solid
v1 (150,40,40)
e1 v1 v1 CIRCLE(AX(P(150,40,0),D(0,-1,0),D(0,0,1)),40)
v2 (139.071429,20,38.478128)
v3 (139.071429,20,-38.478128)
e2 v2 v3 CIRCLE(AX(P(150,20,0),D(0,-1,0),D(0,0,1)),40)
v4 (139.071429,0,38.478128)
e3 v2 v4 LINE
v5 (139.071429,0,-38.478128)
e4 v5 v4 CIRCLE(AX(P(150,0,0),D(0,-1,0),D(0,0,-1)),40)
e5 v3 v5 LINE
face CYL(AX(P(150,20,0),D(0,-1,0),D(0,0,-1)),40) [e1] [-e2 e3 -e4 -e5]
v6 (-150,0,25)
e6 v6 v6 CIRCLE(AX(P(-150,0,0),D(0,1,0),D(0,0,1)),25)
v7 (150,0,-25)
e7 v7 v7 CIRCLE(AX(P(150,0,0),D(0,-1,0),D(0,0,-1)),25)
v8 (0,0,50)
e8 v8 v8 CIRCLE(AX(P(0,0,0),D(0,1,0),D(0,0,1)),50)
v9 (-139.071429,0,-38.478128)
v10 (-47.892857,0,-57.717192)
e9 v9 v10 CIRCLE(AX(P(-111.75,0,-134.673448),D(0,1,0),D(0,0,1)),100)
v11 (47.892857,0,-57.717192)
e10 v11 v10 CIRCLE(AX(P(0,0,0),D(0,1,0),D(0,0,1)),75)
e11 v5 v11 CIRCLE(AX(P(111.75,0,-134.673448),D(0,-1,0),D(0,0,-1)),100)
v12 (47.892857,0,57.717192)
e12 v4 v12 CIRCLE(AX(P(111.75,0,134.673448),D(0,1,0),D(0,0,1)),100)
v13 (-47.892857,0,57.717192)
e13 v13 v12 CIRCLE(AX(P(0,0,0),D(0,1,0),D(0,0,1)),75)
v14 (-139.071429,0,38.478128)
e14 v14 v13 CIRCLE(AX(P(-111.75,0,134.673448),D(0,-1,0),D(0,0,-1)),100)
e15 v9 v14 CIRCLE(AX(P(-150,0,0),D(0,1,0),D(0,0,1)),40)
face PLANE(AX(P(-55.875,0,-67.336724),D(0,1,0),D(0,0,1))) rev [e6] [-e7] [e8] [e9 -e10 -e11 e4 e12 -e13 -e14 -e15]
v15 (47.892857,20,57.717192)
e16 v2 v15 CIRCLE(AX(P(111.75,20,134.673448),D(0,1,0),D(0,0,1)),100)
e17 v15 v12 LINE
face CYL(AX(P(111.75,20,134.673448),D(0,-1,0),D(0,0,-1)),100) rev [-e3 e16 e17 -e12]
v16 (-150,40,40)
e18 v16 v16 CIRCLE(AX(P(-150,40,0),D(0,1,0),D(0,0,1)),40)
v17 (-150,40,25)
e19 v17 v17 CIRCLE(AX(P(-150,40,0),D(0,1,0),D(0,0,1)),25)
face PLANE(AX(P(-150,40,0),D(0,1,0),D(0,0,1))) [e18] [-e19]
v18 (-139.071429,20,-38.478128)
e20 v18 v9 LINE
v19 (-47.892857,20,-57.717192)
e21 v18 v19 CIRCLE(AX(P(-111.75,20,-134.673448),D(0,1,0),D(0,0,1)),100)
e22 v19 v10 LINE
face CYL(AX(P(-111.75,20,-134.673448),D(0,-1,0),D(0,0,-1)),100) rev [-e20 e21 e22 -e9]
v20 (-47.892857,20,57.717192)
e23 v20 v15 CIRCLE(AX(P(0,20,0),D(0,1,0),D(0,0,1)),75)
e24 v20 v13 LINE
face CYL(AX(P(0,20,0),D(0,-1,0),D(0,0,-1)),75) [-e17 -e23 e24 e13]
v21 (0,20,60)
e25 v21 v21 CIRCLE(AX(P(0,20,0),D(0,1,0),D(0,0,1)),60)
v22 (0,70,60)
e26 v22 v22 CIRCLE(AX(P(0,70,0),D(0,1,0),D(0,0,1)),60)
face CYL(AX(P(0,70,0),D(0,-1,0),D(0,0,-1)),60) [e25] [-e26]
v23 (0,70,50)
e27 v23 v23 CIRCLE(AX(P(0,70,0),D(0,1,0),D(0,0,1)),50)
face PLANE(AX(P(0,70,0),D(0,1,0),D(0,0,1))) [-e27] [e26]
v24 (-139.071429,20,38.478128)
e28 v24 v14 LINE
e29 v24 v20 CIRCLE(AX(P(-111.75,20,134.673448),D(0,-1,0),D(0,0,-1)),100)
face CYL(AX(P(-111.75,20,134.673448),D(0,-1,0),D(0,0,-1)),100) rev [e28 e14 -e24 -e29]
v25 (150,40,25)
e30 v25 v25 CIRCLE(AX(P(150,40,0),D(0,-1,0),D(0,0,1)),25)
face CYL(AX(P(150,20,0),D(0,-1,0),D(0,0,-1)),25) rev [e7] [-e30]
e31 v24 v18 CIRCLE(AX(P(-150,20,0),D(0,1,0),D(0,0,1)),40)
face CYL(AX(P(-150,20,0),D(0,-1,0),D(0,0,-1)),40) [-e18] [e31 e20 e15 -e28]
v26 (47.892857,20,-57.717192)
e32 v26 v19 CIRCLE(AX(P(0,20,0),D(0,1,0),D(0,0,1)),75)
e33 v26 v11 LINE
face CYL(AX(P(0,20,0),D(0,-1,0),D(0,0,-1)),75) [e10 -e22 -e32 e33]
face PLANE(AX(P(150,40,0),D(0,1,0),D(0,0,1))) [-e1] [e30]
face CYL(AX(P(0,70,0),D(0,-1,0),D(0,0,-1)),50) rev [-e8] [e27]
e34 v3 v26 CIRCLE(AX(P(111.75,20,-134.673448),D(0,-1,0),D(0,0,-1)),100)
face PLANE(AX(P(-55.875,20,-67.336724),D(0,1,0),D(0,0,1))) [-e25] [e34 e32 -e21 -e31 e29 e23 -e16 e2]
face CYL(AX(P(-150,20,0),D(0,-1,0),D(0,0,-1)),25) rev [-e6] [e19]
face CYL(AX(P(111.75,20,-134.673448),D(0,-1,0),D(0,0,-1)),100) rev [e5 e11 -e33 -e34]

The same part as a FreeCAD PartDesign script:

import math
import FreeCAD as App
import Part
import Sketcher

V = App.Vector
Q = App.Units.Quantity

doc = App.newDocument("Part")
body = doc.addObject("PartDesign::Body", "Body")

sketch1 = doc.addObject("Sketcher::SketchObject", "Sketch")
body.addObject(sketch1)
sketch1.AttachmentSupport = (doc.XZ_Plane, [""])
sketch1.MapMode = "FlatFace"
sketch1.addGeometry([
    Part.ArcOfCircle(Part.Circle(V(-150, 0, 0), V(0, 0, 1), 40), math.radians(74), math.radians(286)),
    Part.ArcOfCircle(Part.Circle(V(-112, 135, 0), V(0, 0, 1), 100), math.radians(-106), math.radians(-50)),
    Part.ArcOfCircle(Part.Circle(V(0, 0, 0), V(0, 0, 1), 75), math.radians(50), math.radians(130)),
    Part.ArcOfCircle(Part.Circle(V(112, 135, 0), V(0, 0, 1), 100), math.radians(-130), math.radians(-74)),
    Part.ArcOfCircle(Part.Circle(V(150, 0, 0), V(0, 0, 1), 40), math.radians(-106), math.radians(106)),
    Part.ArcOfCircle(Part.Circle(V(112, -135, 0), V(0, 0, 1), 100), math.radians(74), math.radians(130)),
    Part.ArcOfCircle(Part.Circle(V(0, 0, 0), V(0, 0, 1), 75), math.radians(-130), math.radians(-50)),
    Part.ArcOfCircle(Part.Circle(V(-112, -135, 0), V(0, 0, 1), 100), math.radians(50), math.radians(106)),
    Part.Circle(V(-150, 0, 0), V(0, 0, 1), 25),
    Part.Circle(V(0, 0, 0), V(0, 0, 1), 60),
    Part.Circle(V(150, 0, 0), V(0, 0, 1), 25),
], False)
sketch1.addConstraint([
    Sketcher.Constraint("Tangent", 0, 1, 1, 1),
    Sketcher.Constraint("Tangent", 1, 2, 2, 2),
    Sketcher.Constraint("Tangent", 2, 1, 3, 1),
    Sketcher.Constraint("Tangent", 3, 2, 4, 2),
    Sketcher.Constraint("Tangent", 4, 1, 5, 1),
    Sketcher.Constraint("Tangent", 5, 2, 6, 2),
    Sketcher.Constraint("Tangent", 6, 1, 7, 1),
    Sketcher.Constraint("Tangent", 7, 2, 0, 2),
    Sketcher.Constraint("Coincident", 2, 3, -1, 1),
    Sketcher.Constraint("Coincident", 6, 3, -1, 1),
    Sketcher.Constraint("Coincident", 9, 3, -1, 1),
    Sketcher.Constraint("Coincident", 8, 3, 0, 3),
    Sketcher.Constraint("Coincident", 10, 3, 4, 3),
    Sketcher.Constraint("Equal", 1, 3),
    Sketcher.Constraint("Equal", 0, 4),
    Sketcher.Constraint("Equal", 3, 5),
    Sketcher.Constraint("Equal", 2, 6),
    Sketcher.Constraint("Equal", 5, 7),
    Sketcher.Constraint("Equal", 8, 10),
    Sketcher.Constraint("Symmetric", 0, 3, 4, 3, -1, 1),
    Sketcher.Constraint("PointOnObject", 0, 3, -1),
    Sketcher.Constraint("Diameter", 8, Q("50 mm")),
    Sketcher.Constraint("Diameter", 9, Q("120 mm")),
    Sketcher.Constraint("Radius", 0, Q("40 mm")),
    Sketcher.Constraint("Radius", 1, Q("100 mm")),
    Sketcher.Constraint("Radius", 2, Q("75 mm")),
    Sketcher.Constraint("DistanceX", 0, 3, -1, 1, Q("150 mm")),
])
pad1 = doc.addObject("PartDesign::Pad", "Pad")
body.addObject(pad1)
pad1.Profile = sketch1
pad1.Length = 20
pad1.Reversed = True

sketch2 = doc.addObject("Sketcher::SketchObject", "Sketch001")
body.addObject(sketch2)
sketch2.AttachmentSupport = (doc.XZ_Plane, [""])
sketch2.MapMode = "FlatFace"
sketch2.addGeometry([
    Part.Circle(V(0, 0, 0), V(0, 0, 1), 60),
    Part.Circle(V(0, 0, 0), V(0, 0, 1), 50),
], False)
sketch2.addConstraint([
    Sketcher.Constraint("Coincident", 0, 3, -1, 1),
    Sketcher.Constraint("Coincident", 1, 3, -1, 1),
    Sketcher.Constraint("Diameter", 0, Q("120 mm")),
    Sketcher.Constraint("Diameter", 1, Q("100 mm")),
])
pad2 = doc.addObject("PartDesign::Pad", "Pad001")
body.addObject(pad2)
pad2.Profile = sketch2
pad2.Length = 70
pad2.Reversed = True

sketch3 = doc.addObject("Sketcher::SketchObject", "Sketch002")
body.addObject(sketch3)
sketch3.AttachmentSupport = (doc.XZ_Plane, [""])
sketch3.MapMode = "FlatFace"
sketch3.AttachmentOffset = App.Placement(V(0, 0, -20), App.Rotation())
sketch3.addGeometry([
    Part.Circle(V(-150, 0, 0), V(0, 0, 1), 40),
    Part.Circle(V(-150, 0, 0), V(0, 0, 1), 25),
], False)
sketch3.addConstraint([
    Sketcher.Constraint("Coincident", 1, 3, 0, 3),
    Sketcher.Constraint("PointOnObject", 0, 3, -1),
    Sketcher.Constraint("Diameter", 0, Q("80 mm")),
    Sketcher.Constraint("Diameter", 1, Q("50 mm")),
    Sketcher.Constraint("DistanceX", 0, 3, -1, 1, Q("150 mm")),
])
pad3 = doc.addObject("PartDesign::Pad", "Pad002")
body.addObject(pad3)
pad3.Profile = sketch3
pad3.Length = 20
pad3.Reversed = True
doc.recompute()

mirrored = doc.addObject("PartDesign::Mirrored", "Mirrored")
body.addObject(mirrored)
mirrored.Originals = [pad3]
mirrored.MirrorPlane = (doc.YZ_Plane, [""])
body.Tip = mirrored

doc.recompute()
